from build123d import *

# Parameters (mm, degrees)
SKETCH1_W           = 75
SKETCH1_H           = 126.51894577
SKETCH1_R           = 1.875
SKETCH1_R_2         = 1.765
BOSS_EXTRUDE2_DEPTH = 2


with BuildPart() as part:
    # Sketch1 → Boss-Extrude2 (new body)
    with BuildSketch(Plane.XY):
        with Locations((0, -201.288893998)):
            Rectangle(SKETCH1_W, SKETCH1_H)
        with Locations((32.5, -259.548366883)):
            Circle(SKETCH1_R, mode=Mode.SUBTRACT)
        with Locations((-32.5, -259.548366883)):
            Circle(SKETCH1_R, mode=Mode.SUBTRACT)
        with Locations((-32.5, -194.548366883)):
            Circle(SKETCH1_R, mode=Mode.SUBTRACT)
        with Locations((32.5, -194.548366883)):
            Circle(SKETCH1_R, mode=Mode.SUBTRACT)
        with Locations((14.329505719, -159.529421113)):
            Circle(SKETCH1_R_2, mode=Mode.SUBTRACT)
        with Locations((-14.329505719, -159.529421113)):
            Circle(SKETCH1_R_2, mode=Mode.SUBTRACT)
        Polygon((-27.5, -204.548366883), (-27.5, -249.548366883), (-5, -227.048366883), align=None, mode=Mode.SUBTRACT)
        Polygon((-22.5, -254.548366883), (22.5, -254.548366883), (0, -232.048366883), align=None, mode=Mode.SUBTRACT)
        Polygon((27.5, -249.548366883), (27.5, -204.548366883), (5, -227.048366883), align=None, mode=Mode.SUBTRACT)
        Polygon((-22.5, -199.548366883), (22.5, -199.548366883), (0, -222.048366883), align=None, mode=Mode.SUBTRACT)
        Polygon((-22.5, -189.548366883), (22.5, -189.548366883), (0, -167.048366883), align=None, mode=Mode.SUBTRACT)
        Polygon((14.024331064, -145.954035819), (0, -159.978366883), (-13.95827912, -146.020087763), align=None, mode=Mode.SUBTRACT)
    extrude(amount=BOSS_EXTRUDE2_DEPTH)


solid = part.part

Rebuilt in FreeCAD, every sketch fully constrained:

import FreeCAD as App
import Part
import Sketcher

V = App.Vector
Q = App.Units.Quantity


def add_polygon(sketch, points):
    """Adds a closed chain of lines whose ends are joined by coincident constraints."""
    first, n = sketch.GeometryCount, len(points)
    for a, b in zip(points, points[1:] + points[:1]):
        sketch.addGeometry(Part.LineSegment(App.Vector(*a, 0), App.Vector(*b, 0)), False)
    for i in range(n):
        sketch.addConstraint(Sketcher.Constraint("Coincident", first + i, 2, first + (i + 1) % n, 1))

doc = App.newDocument("Part")
body = doc.addObject("PartDesign::Body", "Body")

# Sketch on XY plane
sketch1 = doc.addObject("Sketcher::SketchObject", "Sketch")
body.addObject(sketch1)
sketch1.AttachmentSupport = (doc.XY_Plane, [""])
sketch1.MapMode = "FlatFace"
add_polygon(sketch1, [(-37.5, -138), (-37.5, -264.5), (37.5, -264.5), (37.5, -138)])  # lines 0-3
sketch1.addGeometry(Part.Circle(V(-32.5, -259.5, 0), V(0, 0, 1), 1.9), False)  # 4
add_polygon(sketch1, [(-27.5, -249.5), (-27.5, -204.5), (-5, -227)])  # lines 5-7
add_polygon(sketch1, [(22.5, -254.5), (-22.5, -254.5), (0, -232)])  # lines 8-10
sketch1.addGeometry(Part.Circle(V(32.5, -259.5, 0), V(0, 0, 1), 1.9), False)  # 11
add_polygon(sketch1, [(27.5, -204.5), (27.5, -249.5), (5, -227)])  # lines 12-14
add_polygon(sketch1, [(0, -222), (-22.5, -199.5), (22.5, -199.5)])  # lines 15-17
sketch1.addGeometry(Part.Circle(V(-32.5, -194.5, 0), V(0, 0, 1), 1.9), False)  # 18
sketch1.addGeometry(Part.Circle(V(-14.3, -159.5, 0), V(0, 0, 1), 1.8), False)  # 19
add_polygon(sketch1, [(22.5, -189.5), (-22.5, -189.5), (0, -167)])  # lines 20-22
sketch1.addGeometry(Part.Circle(V(32.5, -194.5, 0), V(0, 0, 1), 1.9), False)  # 23
add_polygon(sketch1, [(-14, -146), (14, -146), (0, -160)])  # lines 24-26
sketch1.addGeometry(Part.Circle(V(14.3, -159.5, 0), V(0, 0, 1), 1.8), False)  # 27
sketch1.addConstraint([
    Sketcher.Constraint("Vertical", 0),
    Sketcher.Constraint("Horizontal", 1),
    Sketcher.Constraint("Vertical", 2),
    Sketcher.Constraint("Horizontal", 3),
    Sketcher.Constraint("Vertical", 5),
    Sketcher.Constraint("Horizontal", 8),
    Sketcher.Constraint("Vertical", 12),
    Sketcher.Constraint("Horizontal", 16),
    Sketcher.Constraint("Horizontal", 20),
    Sketcher.Constraint("Equal", 4, 11),
    Sketcher.Constraint("Equal", 11, 18),
    Sketcher.Constraint("Equal", 18, 23),
    Sketcher.Constraint("Equal", 19, 27),
    Sketcher.Constraint("Symmetric", 4, 3, 11, 3, -2),
    Sketcher.Constraint("Symmetric", 18, 3, 23, 3, -2),
    Sketcher.Constraint("Symmetric", 19, 3, 27, 3, -2),
    Sketcher.Constraint("Symmetric", 7, 2, 12, 2, -2),
    Sketcher.Constraint("Symmetric", 6, 2, 13, 2, -2),
    Sketcher.Constraint("PointOnObject", 9, 2, -2),
    Sketcher.Constraint("PointOnObject", 17, 2, -2),
    Sketcher.Constraint("PointOnObject", 21, 2, -2),
    Sketcher.Constraint("PointOnObject", 25, 2, -2),
    Sketcher.Constraint("Perpendicular", 6, 7),
    Sketcher.Constraint("Parallel", 7, 9),
    Sketcher.Constraint("Perpendicular", 9, 10),
    Sketcher.Constraint("Parallel", 10, 13),
    Sketcher.Constraint("Perpendicular", 13, 14),
    Sketcher.Constraint("Perpendicular", 14, 15),
    Sketcher.Constraint("Perpendicular", 15, 17),
    Sketcher.Constraint("Parallel", 17, 21),
    Sketcher.Constraint("Perpendicular", 21, 22),
    Sketcher.Constraint("Perpendicular", 22, 25),
    Sketcher.Constraint("Perpendicular", 25, 26),
    Sketcher.Constraint("Vertical", 4, 3, 18, 3),
    Sketcher.Constraint("Vertical", 8, 2, 15, 2),
    Sketcher.Constraint("Vertical", 15, 2, 20, 2),
    Sketcher.Constraint("Equal", 20, 5),
    Sketcher.Constraint("Diameter", 4, Q("3.75 mm")),
    Sketcher.Constraint("Diameter", 19, Q("3.53 mm")),
    Sketcher.Constraint("DistanceX", 1, 1, 1, 2, Q("75 mm")),
    Sketcher.Constraint("DistanceX", 8, 2, 8, 1, Q("45 mm")),
    Sketcher.Constraint("DistanceX", 6, 2, -1, 1, Q("5 mm")),
    Sketcher.Constraint("DistanceX", 4, 3, 11, 3, Q("65 mm")),
    Sketcher.Constraint("DistanceY", 4, 3, 18, 3, Q("65 mm")),
    Sketcher.Constraint("DistanceX", 0, 2, 4, 3, Q("5 mm")),
    Sketcher.Constraint("DistanceY", 0, 2, 4, 3, Q("5 mm")),
    Sketcher.Constraint("DistanceY", 5, 2, 18, 3, Q("10 mm")),
    Sketcher.Constraint("DistanceY", 8, 2, 7, 2, Q("5 mm")),
    Sketcher.Constraint("DistanceY", 5, 2, 15, 2, Q("5 mm")),
    Sketcher.Constraint("DistanceY", 15, 2, 20, 2, Q("10 mm")),
    Sketcher.Constraint("DistanceY", 27, 3, 2, 2, Q("21.5 mm")),
    Sketcher.Constraint("DistanceY", 21, 2, 25, 2, Q("7.07 mm")),
    Sketcher.Constraint("Distance", 25, Q("19.833399 mm")),
    Sketcher.Constraint("Distance", 24, Q("27.982688 mm")),
    Sketcher.Constraint("DistanceY", 0, 2, 0, 1, Q("126.518946 mm")),
    Sketcher.Constraint("DistanceY", 19, 3, -1, 1, Q("159.529421 mm")),
    Sketcher.Constraint("DistanceX", 19, 3, 27, 3, Q("28.659011 mm")),
])
pad1 = doc.addObject("PartDesign::Pad", "Pad")
body.addObject(pad1)
pad1.Profile = sketch1
pad1.Length = 2

doc.recompute()
